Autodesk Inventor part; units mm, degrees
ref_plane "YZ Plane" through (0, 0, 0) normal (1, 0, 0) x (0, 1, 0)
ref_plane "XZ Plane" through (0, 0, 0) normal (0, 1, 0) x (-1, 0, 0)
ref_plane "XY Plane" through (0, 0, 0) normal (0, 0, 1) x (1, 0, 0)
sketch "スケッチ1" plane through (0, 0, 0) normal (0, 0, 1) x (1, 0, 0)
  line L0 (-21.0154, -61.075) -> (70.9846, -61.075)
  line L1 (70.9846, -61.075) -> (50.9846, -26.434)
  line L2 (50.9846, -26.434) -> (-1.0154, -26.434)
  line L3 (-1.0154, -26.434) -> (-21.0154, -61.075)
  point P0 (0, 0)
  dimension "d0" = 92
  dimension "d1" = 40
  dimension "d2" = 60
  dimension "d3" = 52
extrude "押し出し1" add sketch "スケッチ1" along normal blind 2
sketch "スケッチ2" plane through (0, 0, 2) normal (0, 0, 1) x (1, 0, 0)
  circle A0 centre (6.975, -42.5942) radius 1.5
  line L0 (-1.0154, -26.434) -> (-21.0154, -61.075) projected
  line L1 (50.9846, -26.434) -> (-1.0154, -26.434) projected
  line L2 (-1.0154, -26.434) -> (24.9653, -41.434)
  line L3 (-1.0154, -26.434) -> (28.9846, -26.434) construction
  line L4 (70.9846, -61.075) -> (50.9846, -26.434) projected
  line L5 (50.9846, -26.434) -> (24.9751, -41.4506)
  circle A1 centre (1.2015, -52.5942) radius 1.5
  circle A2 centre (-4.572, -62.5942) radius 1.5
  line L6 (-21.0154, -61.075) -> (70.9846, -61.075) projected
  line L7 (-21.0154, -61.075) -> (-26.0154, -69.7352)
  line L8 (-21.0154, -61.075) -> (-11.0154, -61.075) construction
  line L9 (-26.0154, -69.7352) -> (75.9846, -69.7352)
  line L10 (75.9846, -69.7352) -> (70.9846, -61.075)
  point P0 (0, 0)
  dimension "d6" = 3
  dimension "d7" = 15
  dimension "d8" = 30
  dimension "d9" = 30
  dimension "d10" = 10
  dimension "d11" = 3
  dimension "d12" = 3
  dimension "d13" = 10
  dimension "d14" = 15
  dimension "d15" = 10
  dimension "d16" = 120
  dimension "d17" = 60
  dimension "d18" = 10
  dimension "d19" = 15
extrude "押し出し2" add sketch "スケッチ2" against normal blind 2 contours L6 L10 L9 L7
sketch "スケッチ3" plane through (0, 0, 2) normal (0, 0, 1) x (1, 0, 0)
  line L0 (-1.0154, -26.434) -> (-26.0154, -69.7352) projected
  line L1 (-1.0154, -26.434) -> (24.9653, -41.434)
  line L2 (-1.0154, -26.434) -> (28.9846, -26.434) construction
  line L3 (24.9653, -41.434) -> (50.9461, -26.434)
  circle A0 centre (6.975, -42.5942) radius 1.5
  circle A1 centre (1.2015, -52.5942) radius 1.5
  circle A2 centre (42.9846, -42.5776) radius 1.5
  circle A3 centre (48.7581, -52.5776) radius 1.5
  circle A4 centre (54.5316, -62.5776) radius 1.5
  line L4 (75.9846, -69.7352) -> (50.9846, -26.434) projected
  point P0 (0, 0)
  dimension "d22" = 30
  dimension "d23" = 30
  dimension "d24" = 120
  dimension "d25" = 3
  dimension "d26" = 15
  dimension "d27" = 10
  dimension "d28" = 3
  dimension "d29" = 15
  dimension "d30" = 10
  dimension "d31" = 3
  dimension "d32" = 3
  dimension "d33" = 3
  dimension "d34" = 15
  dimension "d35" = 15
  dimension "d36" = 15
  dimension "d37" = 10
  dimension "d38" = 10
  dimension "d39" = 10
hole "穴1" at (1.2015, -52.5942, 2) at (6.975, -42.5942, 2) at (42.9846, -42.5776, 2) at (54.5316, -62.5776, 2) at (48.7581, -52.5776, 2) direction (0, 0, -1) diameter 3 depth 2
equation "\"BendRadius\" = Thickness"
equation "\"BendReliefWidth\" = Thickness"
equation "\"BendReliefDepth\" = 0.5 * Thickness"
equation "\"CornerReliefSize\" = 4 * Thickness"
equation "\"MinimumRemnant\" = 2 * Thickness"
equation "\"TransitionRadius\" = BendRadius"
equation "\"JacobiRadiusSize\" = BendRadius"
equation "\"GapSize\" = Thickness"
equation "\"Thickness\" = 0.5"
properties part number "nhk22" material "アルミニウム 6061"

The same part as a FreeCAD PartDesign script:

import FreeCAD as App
import Part
import Sketcher
Q = App.Units.Quantity


def add_polygon(sketch, points):
    """Adds a closed chain of lines whose ends are joined by coincident constraints."""
    first, n = sketch.GeometryCount, len(points)
    for a, b in zip(points, points[1:] + points[:1]):
        sketch.addGeometry(Part.LineSegment(App.Vector(*a, 0), App.Vector(*b, 0)), False)
    for i in range(n):
        sketch.addConstraint(Sketcher.Constraint("Coincident", first + i, 2, first + (i + 1) % n, 1))

doc = App.newDocument("Part")
body = doc.addObject("PartDesign::Body", "Body")

# Sketch on XY plane
sketch1 = body.newObject("Sketcher::SketchObject", "Sketch")
sketch1.AttachmentSupport = (doc.getObject("XY_Plane"), [""])
sketch1.MapMode = "FlatFace"
add_polygon(sketch1, [(-1, -26), (-21, -61), (71, -61), (51, -26)])  # lines 0-3
sketch1.addConstraint([
    Sketcher.Constraint("Horizontal", 1),
    Sketcher.Constraint("Horizontal", 3),
    Sketcher.Constraint("Equal", 0, 2),
    Sketcher.Constraint("DistanceX", 1, 1, 1, 2, Q("92 mm")),
    Sketcher.Constraint("DistanceX", 3, 2, 3, 1, Q("52 mm")),
    Sketcher.Constraint("Distance", 0, Q("40 mm")),
    Sketcher.Constraint("DistanceY", 0, 2, -1, 1, Q("61.075 mm")),
    Sketcher.Constraint("DistanceX", 0, 2, -1, 1, Q("21.0154 mm")),
])
pad1 = body.newObject("PartDesign::Pad", "Pad")
pad1.Profile = sketch1
pad1.Length = 2

# Sketch on XY plane
sketch2 = body.newObject("Sketcher::SketchObject", "Sketch001")
sketch2.AttachmentSupport = (doc.getObject("XY_Plane"), [""])
sketch2.MapMode = "FlatFace"
sketch2.AttachmentOffset = App.Placement(App.Vector(0, 0, 2), App.Rotation())
add_polygon(sketch2, [(71, -61.1), (-21, -61.1), (-26, -69.7), (76, -69.7)])  # lines 0-3
sketch2.addGeometry(Part.Circle(App.Vector(-4.6, -62.6, 0), App.Vector(0, 0, 1), 1.5), False)  # 4
sketch2.addConstraint([
    Sketcher.Constraint("Horizontal", 0),
    Sketcher.Constraint("Horizontal", 2),
    Sketcher.Constraint("Equal", 1, 3),
    Sketcher.Constraint("Diameter", 4, Q("3 mm")),
    Sketcher.Constraint("Angle", 1, Q("-120.0002 deg")),
    Sketcher.Constraint("Distance", 1, Q("10 mm")),
    Sketcher.Constraint("DistanceX", 0, 2, 0, 1, Q("92 mm")),
    Sketcher.Constraint("DistanceX", 4, 3, -1, 1, Q("4.572 mm")),
    Sketcher.Constraint("DistanceY", 0, 2, -1, 1, Q("61.075 mm")),
    Sketcher.Constraint("DistanceY", 1, 2, 4, 3, Q("7.141 mm")),
    Sketcher.Constraint("DistanceX", 0, 2, -1, 1, Q("21.0154 mm")),
])
pad2 = body.newObject("PartDesign::Pad", "Pad001")
pad2.Profile = sketch2
pad2.Length = 2
pad2.Reversed = True

# Sketch on XY plane
sketch3 = body.newObject("Sketcher::SketchObject", "Sketch002")
sketch3.AttachmentSupport = (doc.getObject("XY_Plane"), [""])
sketch3.MapMode = "FlatFace"
sketch3.AttachmentOffset = App.Placement(App.Vector(0, 0, 2), App.Rotation())
sketch3.addGeometry([
    Part.Circle(App.Vector(1.2, -52.6, 0), App.Vector(0, 0, 1), 1.5),  # 0
    Part.Circle(App.Vector(7, -42.6, 0), App.Vector(0, 0, 1), 1.5),  # 1
    Part.Circle(App.Vector(43, -42.6, 0), App.Vector(0, 0, 1), 1.5),  # 2
    Part.Circle(App.Vector(54.5, -62.6, 0), App.Vector(0, 0, 1), 1.5),  # 3
    Part.Circle(App.Vector(48.8, -52.6, 0), App.Vector(0, 0, 1), 1.5),  # 4
], False)
sketch3.addConstraint([
    Sketcher.Constraint("Equal", 0, 1),
    Sketcher.Constraint("Equal", 1, 2),
    Sketcher.Constraint("Equal", 2, 3),
    Sketcher.Constraint("Equal", 3, 4),
    Sketcher.Constraint("Diameter", 0, Q("3 mm")),
    Sketcher.Constraint("DistanceY", 0, 3, 1, 3, Q("10 mm")),
    Sketcher.Constraint("DistanceY", 3, 3, 2, 3, Q("20 mm")),
    Sketcher.Constraint("DistanceY", 4, 3, 2, 3, Q("10 mm")),
    Sketcher.Constraint("DistanceX", 0, 3, 3, 3, Q("53.33 mm")),
    Sketcher.Constraint("DistanceX", -1, 1, 1, 3, Q("6.975 mm")),
    Sketcher.Constraint("DistanceX", -1, 1, 4, 3, Q("48.758 mm")),
    Sketcher.Constraint("DistanceX", 0, 3, 2, 3, Q("41.783 mm")),
    Sketcher.Constraint("DistanceX", -1, 1, 0, 3, Q("1.2015 mm")),
    Sketcher.Constraint("DistanceY", 0, 3, -1, 1, Q("52.5942 mm")),
    Sketcher.Constraint("DistanceY", 2, 3, -1, 1, Q("42.5776 mm")),
])
doc.recompute()
hole = body.newObject("PartDesign::Hole", "Hole")
hole.Profile = sketch3
hole.ThreadType = "None"
hole.Diameter = 3
hole.DepthType = "Dimension"
hole.Depth = 2
hole.DrillPoint = "Flat"

doc.recompute()
